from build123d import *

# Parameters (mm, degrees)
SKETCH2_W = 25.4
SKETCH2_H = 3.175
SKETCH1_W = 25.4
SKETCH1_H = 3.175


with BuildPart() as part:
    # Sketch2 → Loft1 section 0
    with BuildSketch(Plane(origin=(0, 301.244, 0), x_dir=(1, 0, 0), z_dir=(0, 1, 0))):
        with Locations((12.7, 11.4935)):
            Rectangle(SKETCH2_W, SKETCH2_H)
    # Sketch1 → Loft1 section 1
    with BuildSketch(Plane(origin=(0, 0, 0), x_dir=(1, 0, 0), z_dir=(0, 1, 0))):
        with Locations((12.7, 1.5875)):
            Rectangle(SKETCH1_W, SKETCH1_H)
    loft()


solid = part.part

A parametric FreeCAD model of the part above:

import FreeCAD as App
import Part
import Sketcher
from FreeCAD import Vector
Q = App.Units.Quantity


def add_polygon(sketch, points):
    """Adds a closed chain of lines whose ends are joined by coincident constraints."""
    first, n = sketch.GeometryCount, len(points)
    for a, b in zip(points, points[1:] + points[:1]):
        sketch.addGeometry(Part.LineSegment(App.Vector(*a, 0), App.Vector(*b, 0)), False)
    for i in range(n):
        sketch.addConstraint(Sketcher.Constraint("Coincident", first + i, 2, first + (i + 1) % n, 1))

doc = App.newDocument("Part")
body = doc.addObject("PartDesign::Body", "Body")

sketch1 = body.newObject("Sketcher::SketchObject", "Sketch")
sketch1.AttachmentSupport = (doc.getObject("XZ_Plane"), [""])
sketch1.MapMode = "FlatFace"
sketch1.AttachmentOffset = App.Placement(Vector(0, 0, -11.86 * 25.4), App.Rotation())
add_polygon(sketch1, [(0, -13.081), (0, -9.906), (25.4, -9.906), (25.4, -13.081)])
sketch1.addConstraint([
    Sketcher.Constraint("Vertical", 0),
    Sketcher.Constraint("Horizontal", 1),
    Sketcher.Constraint("Vertical", 2),
    Sketcher.Constraint("Horizontal", 3),
    Sketcher.Constraint("PointOnObject", 0, 2, -2),
    Sketcher.Constraint("DistanceX", 1, 1, 1, 2, Q("1 in")),
    Sketcher.Constraint("DistanceY", 0, 1, 0, 2, Q("0.125 in")),
    Sketcher.Constraint("DistanceY", 0, 2, -1, 1, Q("0.39 in")),
])

sketch2 = body.newObject("Sketcher::SketchObject", "Sketch001")
sketch2.AttachmentSupport = (doc.getObject("XZ_Plane"), [""])
sketch2.MapMode = "FlatFace"
add_polygon(sketch2, [(0, -3.175), (0, 0), (25.4, 0), (25.4, -3.175)])
sketch2.addConstraint([
    Sketcher.Constraint("Vertical", 0),
    Sketcher.Constraint("Horizontal", 1),
    Sketcher.Constraint("Vertical", 2),
    Sketcher.Constraint("Horizontal", 3),
    Sketcher.Constraint("Coincident", 0, 2, -1, 1),
    Sketcher.Constraint("DistanceX", 1, 1, 1, 2, Q("1 in")),
    Sketcher.Constraint("DistanceY", 0, 1, 0, 2, Q("0.125 in")),
])

additiveloft = body.newObject("PartDesign::AdditiveLoft", "AdditiveLoft")
additiveloft.Profile = sketch1
additiveloft.Sections = [sketch2]

doc.recompute()
